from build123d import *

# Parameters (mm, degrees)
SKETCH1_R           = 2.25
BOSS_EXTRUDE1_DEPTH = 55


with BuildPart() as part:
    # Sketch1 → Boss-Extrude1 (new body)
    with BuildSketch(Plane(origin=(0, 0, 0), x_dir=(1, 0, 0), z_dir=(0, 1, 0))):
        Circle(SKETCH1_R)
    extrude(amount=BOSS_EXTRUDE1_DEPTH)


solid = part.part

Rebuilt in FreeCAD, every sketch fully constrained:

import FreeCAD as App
import Part
import Sketcher
from FreeCAD import Vector
Q = App.Units.Quantity

doc = App.newDocument("Part")
body = doc.addObject("PartDesign::Body", "Body")

# Sketch on XZ plane
sketch1 = body.newObject("Sketcher::SketchObject", "Sketch")
sketch1.AttachmentSupport = (doc.getObject("XZ_Plane"), [""])
sketch1.MapMode = "FlatFace"
sketch1.addGeometry(Part.Circle(Vector(0, 0, 0), Vector(0, 0, 1), 2.25), False)
sketch1.addConstraint([
    Sketcher.Constraint("Coincident", 0, 3, -1, 1),
    Sketcher.Constraint("Diameter", 0, Q("4.5 mm")),
])
pad1 = body.newObject("PartDesign::Pad", "Pad")
pad1.Profile = sketch1
pad1.Length = 55
pad1.Reversed = True

doc.recompute()
